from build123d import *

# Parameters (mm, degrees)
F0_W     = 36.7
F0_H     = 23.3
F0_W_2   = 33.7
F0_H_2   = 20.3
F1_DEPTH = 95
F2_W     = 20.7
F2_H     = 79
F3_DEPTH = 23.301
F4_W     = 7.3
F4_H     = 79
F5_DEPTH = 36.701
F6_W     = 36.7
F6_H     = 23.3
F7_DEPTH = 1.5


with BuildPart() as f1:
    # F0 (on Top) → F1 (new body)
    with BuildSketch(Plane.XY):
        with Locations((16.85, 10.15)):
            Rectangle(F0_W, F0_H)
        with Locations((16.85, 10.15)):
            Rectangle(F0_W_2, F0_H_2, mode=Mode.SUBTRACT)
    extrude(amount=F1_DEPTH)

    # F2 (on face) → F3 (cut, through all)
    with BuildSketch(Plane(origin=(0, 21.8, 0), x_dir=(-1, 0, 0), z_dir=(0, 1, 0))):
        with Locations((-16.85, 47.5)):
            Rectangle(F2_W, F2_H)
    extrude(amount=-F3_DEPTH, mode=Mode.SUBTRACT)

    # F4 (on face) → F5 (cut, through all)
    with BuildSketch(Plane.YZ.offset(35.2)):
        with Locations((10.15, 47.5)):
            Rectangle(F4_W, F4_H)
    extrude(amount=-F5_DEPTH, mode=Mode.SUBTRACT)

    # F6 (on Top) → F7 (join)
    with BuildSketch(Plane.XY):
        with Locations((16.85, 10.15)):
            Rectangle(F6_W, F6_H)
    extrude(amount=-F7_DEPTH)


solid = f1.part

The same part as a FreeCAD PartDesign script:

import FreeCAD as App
import Part
import Sketcher


def add_polygon(sketch, points):
    """Adds a closed chain of lines whose ends are joined by coincident constraints."""
    first, n = sketch.GeometryCount, len(points)
    for a, b in zip(points, points[1:] + points[:1]):
        sketch.addGeometry(Part.LineSegment(App.Vector(*a, 0), App.Vector(*b, 0)), False)
    for i in range(n):
        sketch.addConstraint(Sketcher.Constraint("Coincident", first + i, 2, first + (i + 1) % n, 1))

doc = App.newDocument("Part")
params = doc.addObject("Spreadsheet::Sheet", "Params")
for row, (alias, value) in enumerate([
    ("sketch1_width", "36.7 mm"),
    ("sketch1_width2", "33.7 mm"),
    ("sketch1_height", "23.3 mm"),
    ("sketch1_height2", "20.3 mm"),
    ("pad1_length", "95 mm"),
    ("sketch2_height", "79 mm"),
    ("sketch2_width", "20.7 mm"),
    ("sketch3_height", "79 mm"),
    ("sketch3_width", "7.3 mm"),
    ("sketch4_width", "36.7 mm"),
    ("sketch4_height", "23.3 mm"),
    ("pad2_length", "1.5 mm"),
], start=1):
    params.set(f"A{row}", alias)
    params.set(f"B{row}", "=" + value)
    params.setAlias(f"B{row}", alias)

body = doc.addObject("PartDesign::Body", "Body")

# Sketch on XY plane
sketch1 = doc.addObject("Sketcher::SketchObject", "Sketch")
body.addObject(sketch1)
sketch1.AttachmentSupport = (doc.XY_Plane, [""])
sketch1.MapMode = "FlatFace"
add_polygon(sketch1, [(-2, 22), (-2, -2), (35, -2), (35, 22)])  # lines 0-3
add_polygon(sketch1, [(34, 0), (0, 0), (0, 20), (34, 20)])  # lines 4-7
sketch1.addConstraint([
    Sketcher.Constraint("Vertical", 0),
    Sketcher.Constraint("Horizontal", 1),
    Sketcher.Constraint("Vertical", 2),
    Sketcher.Constraint("Horizontal", 3),
    Sketcher.Constraint("Horizontal", 4),
    Sketcher.Constraint("Vertical", 5),
    Sketcher.Constraint("Horizontal", 6),
    Sketcher.Constraint("Vertical", 7),
    Sketcher.Constraint("Coincident", 4, 2, -1, 1),
    Sketcher.Constraint("DistanceX", 1, 1, 1, 2, 36.7),
    Sketcher.Constraint("DistanceX", 4, 2, 4, 1, 33.7),
    Sketcher.Constraint("DistanceY", 0, 2, 0, 1, 23.3),
    Sketcher.Constraint("DistanceY", 5, 1, 5, 2, 20.3),
    Sketcher.Constraint("DistanceX", 0, 2, -1, 1, 1.5),
    Sketcher.Constraint("DistanceY", 0, 2, -1, 1, 1.5),
])
sketch1.setExpression("Constraints[17]", "Params.sketch1_width")
sketch1.setExpression("Constraints[18]", "Params.sketch1_width2")
sketch1.setExpression("Constraints[19]", "Params.sketch1_height")
sketch1.setExpression("Constraints[20]", "Params.sketch1_height2")
pad1 = doc.addObject("PartDesign::Pad", "Pad")
body.addObject(pad1)
pad1.Profile = sketch1
pad1.setExpression("Length", "Params.pad1_length")

# Sketch on XZ plane
sketch2 = doc.addObject("Sketcher::SketchObject", "Sketch001")
body.addObject(sketch2)
sketch2.AttachmentSupport = (doc.XZ_Plane, [""])
sketch2.MapMode = "FlatFace"
sketch2.AttachmentOffset = App.Placement(App.Vector(0, 0, -21.8), App.Rotation())
add_polygon(sketch2, [(27, 87), (27, 8), (6, 8), (6, 87)])  # lines 0-3
sketch2.addConstraint([
    Sketcher.Constraint("Vertical", 0),
    Sketcher.Constraint("Horizontal", 1),
    Sketcher.Constraint("Vertical", 2),
    Sketcher.Constraint("Horizontal", 3),
    Sketcher.Constraint("DistanceY", 0, 2, 0, 1, 79.0),
    Sketcher.Constraint("DistanceX", 1, 2, 1, 1, 20.7),
    Sketcher.Constraint("DistanceY", -1, 1, 0, 2, 8.0),
    Sketcher.Constraint("DistanceX", -1, 1, 0, 2, 27.2),
])
sketch2.setExpression("Constraints[8]", "Params.sketch2_height")
sketch2.setExpression("Constraints[9]", "Params.sketch2_width")
pocket1 = doc.addObject("PartDesign::Pocket", "Pocket")
body.addObject(pocket1)
pocket1.Profile = sketch2
pocket1.Type = "ThroughAll"
pocket1.Reversed = True

# Sketch on YZ plane
sketch3 = doc.addObject("Sketcher::SketchObject", "Sketch002")
body.addObject(sketch3)
sketch3.AttachmentSupport = (doc.YZ_Plane, [""])
sketch3.MapMode = "FlatFace"
sketch3.AttachmentOffset = App.Placement(App.Vector(0, 0, 35.2), App.Rotation())
add_polygon(sketch3, [(6, 87), (6, 8), (14, 8), (14, 87)])  # lines 0-3
sketch3.addConstraint([
    Sketcher.Constraint("Vertical", 0),
    Sketcher.Constraint("Horizontal", 1),
    Sketcher.Constraint("Vertical", 2),
    Sketcher.Constraint("Horizontal", 3),
    Sketcher.Constraint("DistanceY", 0, 2, 0, 1, 79.0),
    Sketcher.Constraint("DistanceX", 1, 1, 1, 2, 7.3),
    Sketcher.Constraint("DistanceY", -1, 1, 0, 2, 8.0),
    Sketcher.Constraint("DistanceX", -1, 1, 0, 2, 6.5),
])
sketch3.setExpression("Constraints[8]", "Params.sketch3_height")
sketch3.setExpression("Constraints[9]", "Params.sketch3_width")
pocket2 = doc.addObject("PartDesign::Pocket", "Pocket001")
body.addObject(pocket2)
pocket2.Profile = sketch3
pocket2.Type = "ThroughAll"

# Sketch on XY plane
sketch4 = doc.addObject("Sketcher::SketchObject", "Sketch003")
body.addObject(sketch4)
sketch4.AttachmentSupport = (doc.XY_Plane, [""])
sketch4.MapMode = "FlatFace"
add_polygon(sketch4, [(-2, 22), (-2, -2), (35, -2), (35, 22)])  # lines 0-3
sketch4.addConstraint([
    Sketcher.Constraint("Vertical", 0),
    Sketcher.Constraint("Horizontal", 1),
    Sketcher.Constraint("Vertical", 2),
    Sketcher.Constraint("Horizontal", 3),
    Sketcher.Constraint("DistanceX", 1, 1, 1, 2, 36.7),
    Sketcher.Constraint("DistanceY", 0, 2, 0, 1, 23.3),
    Sketcher.Constraint("DistanceX", 0, 2, -1, 1, 1.5),
    Sketcher.Constraint("DistanceY", 0, 2, -1, 1, 1.5),
])
sketch4.setExpression("Constraints[8]", "Params.sketch4_width")
sketch4.setExpression("Constraints[9]", "Params.sketch4_height")
pad2 = doc.addObject("PartDesign::Pad", "Pad001")
body.addObject(pad2)
pad2.Profile = sketch4
pad2.setExpression("Length", "Params.pad2_length")
pad2.Reversed = True

doc.recompute()
